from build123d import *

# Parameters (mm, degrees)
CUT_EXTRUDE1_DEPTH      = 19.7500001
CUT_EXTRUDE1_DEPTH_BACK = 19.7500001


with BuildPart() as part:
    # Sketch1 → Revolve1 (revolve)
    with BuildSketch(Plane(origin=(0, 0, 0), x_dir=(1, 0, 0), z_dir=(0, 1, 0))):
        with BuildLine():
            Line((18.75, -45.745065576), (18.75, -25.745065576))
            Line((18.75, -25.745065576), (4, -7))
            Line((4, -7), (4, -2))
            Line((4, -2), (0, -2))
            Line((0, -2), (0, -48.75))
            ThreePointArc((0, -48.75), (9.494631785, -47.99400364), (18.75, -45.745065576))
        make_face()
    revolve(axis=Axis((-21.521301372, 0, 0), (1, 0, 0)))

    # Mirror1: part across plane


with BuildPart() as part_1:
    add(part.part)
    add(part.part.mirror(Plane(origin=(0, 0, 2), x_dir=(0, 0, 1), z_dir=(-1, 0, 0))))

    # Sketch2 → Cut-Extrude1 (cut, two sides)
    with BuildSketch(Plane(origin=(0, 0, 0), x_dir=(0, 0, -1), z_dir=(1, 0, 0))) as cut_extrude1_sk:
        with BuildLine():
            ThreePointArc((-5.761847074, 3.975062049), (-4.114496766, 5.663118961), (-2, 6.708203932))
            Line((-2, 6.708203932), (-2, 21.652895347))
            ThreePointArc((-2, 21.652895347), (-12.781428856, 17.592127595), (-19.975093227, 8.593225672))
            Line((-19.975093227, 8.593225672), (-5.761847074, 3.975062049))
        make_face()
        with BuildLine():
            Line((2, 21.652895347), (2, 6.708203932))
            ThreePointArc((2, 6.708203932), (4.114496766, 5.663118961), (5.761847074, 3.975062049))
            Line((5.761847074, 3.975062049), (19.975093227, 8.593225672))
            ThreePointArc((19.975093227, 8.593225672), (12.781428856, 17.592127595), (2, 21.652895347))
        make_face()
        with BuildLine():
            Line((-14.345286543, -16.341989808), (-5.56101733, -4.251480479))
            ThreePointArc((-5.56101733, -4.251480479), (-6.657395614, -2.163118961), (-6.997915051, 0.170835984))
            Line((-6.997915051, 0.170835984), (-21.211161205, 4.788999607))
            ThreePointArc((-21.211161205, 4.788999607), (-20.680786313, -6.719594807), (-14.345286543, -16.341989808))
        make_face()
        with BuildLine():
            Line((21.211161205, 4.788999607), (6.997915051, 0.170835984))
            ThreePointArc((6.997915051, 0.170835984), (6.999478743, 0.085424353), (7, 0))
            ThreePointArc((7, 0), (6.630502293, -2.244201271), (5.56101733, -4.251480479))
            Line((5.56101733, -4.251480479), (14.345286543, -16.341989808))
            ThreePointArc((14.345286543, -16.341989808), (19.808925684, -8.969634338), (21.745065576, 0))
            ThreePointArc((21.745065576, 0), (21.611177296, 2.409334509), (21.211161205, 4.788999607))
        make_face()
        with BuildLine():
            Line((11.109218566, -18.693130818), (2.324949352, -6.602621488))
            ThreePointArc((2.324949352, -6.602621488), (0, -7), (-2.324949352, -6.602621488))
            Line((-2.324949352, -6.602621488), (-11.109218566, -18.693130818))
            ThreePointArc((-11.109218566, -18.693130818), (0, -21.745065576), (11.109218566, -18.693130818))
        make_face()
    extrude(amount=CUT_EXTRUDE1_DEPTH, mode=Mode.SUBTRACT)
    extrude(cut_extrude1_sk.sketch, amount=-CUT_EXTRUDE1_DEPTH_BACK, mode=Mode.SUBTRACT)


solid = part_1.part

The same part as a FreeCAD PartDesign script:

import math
import FreeCAD as App
import Part
import Sketcher

V = App.Vector
Q = App.Units.Quantity

doc = App.newDocument("Part")
body = doc.addObject("PartDesign::Body", "Body")

# Sketch on XZ plane
sketch1 = body.newObject("Sketcher::SketchObject", "Sketch")
sketch1.AttachmentSupport = (doc.getObject("XZ_Plane"), [""])
sketch1.MapMode = "FlatFace"
sketch1.addGeometry([
    Part.LineSegment(V(18.75, 45.745066, 0), V(18.75, 25.745066, 0)),  # 0
    Part.LineSegment(V(18.75, 25.745066, 0), V(4, 7, 0)),  # 1
    Part.LineSegment(V(4, 7, 0), V(4, 2, 0)),  # 2
    Part.LineSegment(V(4, 2, 0), V(0, 2, 0)),  # 3
    Part.LineSegment(V(0, 2, 0), V(0, 48.75, 0)),  # 4
    Part.ArcOfCircle(Part.Circle(V(0, -11.25, 0), V(0, 0, 1), 60), math.radians(71.790043), math.radians(90)),  # 5
], False)
sketch1.addConstraint([
    Sketcher.Constraint("Coincident", 0, 2, 1, 1),
    Sketcher.Constraint("Coincident", 1, 2, 2, 1),
    Sketcher.Constraint("Coincident", 2, 2, 3, 1),
    Sketcher.Constraint("Coincident", 3, 2, 4, 1),
    Sketcher.Constraint("Coincident", 4, 2, 5, 2),
    Sketcher.Constraint("Coincident", 5, 1, 0, 1),
    Sketcher.Constraint("Vertical", 0),
    Sketcher.Constraint("Vertical", 2),
    Sketcher.Constraint("Horizontal", 3),
    Sketcher.Constraint("Vertical", 4),
    Sketcher.Constraint("PointOnObject", 5, 3, -2),
    Sketcher.Constraint("PointOnObject", 3, 2, -2),
    Sketcher.Constraint("Radius", 5, Q("60 mm")),
    Sketcher.Constraint("DistanceX", 3, 2, 3, 1, Q("4 mm")),
    Sketcher.Constraint("DistanceY", 0, 2, 0, 1, Q("20 mm")),
    Sketcher.Constraint("DistanceY", 2, 2, 2, 1, Q("5 mm")),
    Sketcher.Constraint("DistanceY", -1, 1, 1, 2, Q("7 mm")),
    Sketcher.Constraint("DistanceY", 4, 1, 4, 2, Q("46.75 mm")),
    Sketcher.Constraint("DistanceX", -1, 1, 0, 2, Q("18.75 mm")),
])
revolution = body.newObject("PartDesign::Revolution", "Revolution")
revolution.Profile = sketch1
revolution.ReferenceAxis = (sketch1, ["H_Axis"])
revolution.Angle = 360
body2 = doc.addObject("PartDesign::Body", "Body001")
doc.recompute()

body2.BaseFeature = body
doc.recompute()

mirroring = doc.addObject("Part::Mirroring", "Mirroring")
mirroring.Source = body
mirroring.Base = V(0, 0, 2)
mirroring.Normal = V(-1, 0, 0)
body3 = doc.addObject("PartDesign::Body", "Body002")
body3.BaseFeature = mirroring
boolean = body2.newObject("PartDesign::Boolean", "Boolean")
boolean.Type = "Fuse"
boolean.addObjects([body3])
doc.recompute()

# Sketch on YZ plane
sketch2 = body2.newObject("Sketcher::SketchObject", "Sketch001")
sketch2.AttachmentSupport = (doc.getObject("YZ_Plane001"), [""])
sketch2.MapMode = "FlatFace"
sketch2.addGeometry([
    Part.ArcOfCircle(Part.Circle(V(0, 0, 0), V(0, 0, 1), 7), math.radians(16.60155), math.radians(55.39845)),  # 0
    Part.LineSegment(V(6.708204, 2, 0), V(21.652895, 2, 0)),  # 1
    Part.ArcOfCircle(Part.Circle(V(0, 0, 0), V(0, 0, 1), 21.745066), math.radians(5.277231), math.radians(66.722769)),  # 2
    Part.LineSegment(V(8.593226, 19.975093, 0), V(3.975062, 5.761847, 0)),  # 3
    Part.LineSegment(V(21.652895, -2, 0), V(6.708204, -2, 0)),  # 4
    Part.ArcOfCircle(Part.Circle(V(0, 0, 0), V(0, 0, 1), 7), math.radians(-55.39845), math.radians(-16.60155)),  # 5
    Part.LineSegment(V(3.975062, -5.761847, 0), V(8.593226, -19.975093, 0)),  # 6
    Part.ArcOfCircle(Part.Circle(V(0, 0, 0), V(0, 0, 1), 21.745066), math.radians(-66.722769), math.radians(-5.277231)),  # 7
    Part.LineSegment(V(-16.34199, 14.345287, 0), V(-4.25148, 5.561017, 0)),  # 8
    Part.ArcOfCircle(Part.Circle(V(0, 0, 0), V(0, 0, 1), 7), math.radians(88.60155), math.radians(127.39845)),  # 9
    Part.LineSegment(V(0.170836, 6.997915, 0), V(4.789, 21.211161, 0)),  # 10
    Part.ArcOfCircle(Part.Circle(V(0, 0, 0), V(0, 0, 1), 21.745066), math.radians(77.277231), math.radians(138.722769)),  # 11
    Part.LineSegment(V(4.789, -21.211161, 0), V(0.170836, -6.997915, 0)),  # 12
    Part.ArcOfCircle(Part.Circle(V(0, 0.000003, 0), V(0, 0, 1), 7.000003), math.radians(-90), math.radians(-88.60155)),  # 13
    Part.ArcOfCircle(Part.Circle(V(0, 0, 0), V(0, 0, 1), 7), math.radians(-127.39845), math.radians(-90)),  # 14
    Part.LineSegment(V(-4.25148, -5.561017, 0), V(-16.34199, -14.345287, 0)),  # 15
    Part.ArcOfCircle(Part.Circle(V(0, 0, 0), V(0, 0, 1), 21.745066), math.radians(-138.722769), math.radians(-90)),  # 16
    Part.ArcOfCircle(Part.Circle(V(0, 0, 0), V(0, 0, 1), 21.745066), math.radians(-90), math.radians(-77.277231)),  # 17
    Part.LineSegment(V(-18.693131, -11.109219, 0), V(-6.602621, -2.324949, 0)),  # 18
    Part.ArcOfCircle(Part.Circle(V(0, 0, 0), V(0, 0, 1), 7), math.radians(160.60155), math.radians(199.39845)),  # 19
    Part.LineSegment(V(-6.602621, 2.324949, 0), V(-18.693131, 11.109219, 0)),  # 20
    Part.ArcOfCircle(Part.Circle(V(0, 0, 0), V(0, 0, 1), 21.745066), math.radians(149.277231), math.radians(210.722769)),  # 21
], False)
sketch2.addConstraint([
    Sketcher.Constraint("Coincident", 0, 1, 1, 1),
    Sketcher.Constraint("Coincident", 1, 2, 2, 1),
    Sketcher.Constraint("Coincident", 2, 2, 3, 1),
    Sketcher.Constraint("Coincident", 3, 2, 0, 2),
    Sketcher.Constraint("Coincident", 4, 2, 5, 2),
    Sketcher.Constraint("Coincident", 5, 1, 6, 1),
    Sketcher.Constraint("Coincident", 6, 2, 7, 1),
    Sketcher.Constraint("Coincident", 7, 2, 4, 1),
    Sketcher.Constraint("Coincident", 8, 2, 9, 2),
    Sketcher.Constraint("Coincident", 9, 1, 10, 1),
    Sketcher.Constraint("Coincident", 10, 2, 11, 1),
    Sketcher.Constraint("Coincident", 11, 2, 8, 1),
    Sketcher.Constraint("Coincident", 12, 2, 13, 2),
    Sketcher.Constraint("Tangent", 13, 1, 14, 2),
    Sketcher.Constraint("Coincident", 14, 1, 15, 1),
    Sketcher.Constraint("Coincident", 15, 2, 16, 1),
    Sketcher.Constraint("Tangent", 16, 2, 17, 1),
    Sketcher.Constraint("Coincident", 17, 2, 12, 1),
    Sketcher.Constraint("Coincident", 18, 2, 19, 2),
    Sketcher.Constraint("Coincident", 19, 1, 20, 1),
    Sketcher.Constraint("Coincident", 20, 2, 21, 1),
    Sketcher.Constraint("Coincident", 21, 2, 18, 1),
    Sketcher.Constraint("Horizontal", 1),
    Sketcher.Constraint("Horizontal", 4),
    Sketcher.Constraint("Coincident", 0, 3, -1, 1),
    Sketcher.Constraint("Coincident", 2, 3, -1, 1),
    Sketcher.Constraint("Coincident", 5, 3, -1, 1),
    Sketcher.Constraint("Coincident", 7, 3, -1, 1),
    Sketcher.Constraint("Coincident", 9, 3, -1, 1),
    Sketcher.Constraint("Coincident", 11, 3, -1, 1),
    Sketcher.Constraint("Coincident", 13, 3, -1, 1),
    Sketcher.Constraint("Coincident", 16, 3, -1, 1),
    Sketcher.Constraint("Coincident", 19, 3, -1, 1),
    Sketcher.Constraint("Coincident", 21, 3, -1, 1),
    Sketcher.Constraint("Equal", 0, 5),
    Sketcher.Constraint("Equal", 2, 7),
    Sketcher.Constraint("Equal", 5, 9),
    Sketcher.Constraint("Equal", 7, 11),
    Sketcher.Constraint("Equal", 9, 14),
    Sketcher.Constraint("Equal", 11, 16),
    Sketcher.Constraint("Equal", 16, 17),
    Sketcher.Constraint("Equal", 14, 19),
    Sketcher.Constraint("Equal", 17, 21),
    Sketcher.Constraint("Symmetric", 9, 1, 12, 2, -1),
    Sketcher.Constraint("PointOnObject", 13, 1, -2),
    Sketcher.Constraint("PointOnObject", 16, 2, -2),
    Sketcher.Constraint("Parallel", 3, 10),
    Sketcher.Constraint("Parallel", 6, 12),
    Sketcher.Constraint("Parallel", 15, 18),
    Sketcher.Constraint("Parallel", 8, 20),
    Sketcher.Constraint("Vertical", 0, 1, 4, 2),
    Sketcher.Constraint("Vertical", 3, 2, 5, 1),
    Sketcher.Constraint("Vertical", 2, 2, 6, 2),
    Sketcher.Constraint("Vertical", 8, 2, 14, 1),
    Sketcher.Constraint("Vertical", 11, 2, 15, 2),
    Sketcher.Constraint("Vertical", 18, 2, 19, 1),
    Sketcher.Constraint("Equal", 6, 8),
    Sketcher.Constraint("Equal", 8, 10),
    Sketcher.Constraint("Equal", 15, 18),
    Sketcher.Constraint("Radius", 0, Q("7 mm")),
    Sketcher.Constraint("Angle", 3, Q("-108 deg")),
    Sketcher.Constraint("Angle", 8, Q("-36 deg")),
    Sketcher.Constraint("DistanceY", -1, 1, 0, 1, Q("2 mm")),
    Sketcher.Constraint("DistanceX", -1, 1, 10, 2, Q("4.789 mm")),
    Sketcher.Constraint("Radius", 2, Q("21.745066 mm")),
])
pocket1 = body2.newObject("PartDesign::Pocket", "Pocket")
pocket1.Profile = sketch2
pocket1.Type = "ThroughAll"
pocket1.Midplane = True
mirroring.Visibility = False

doc.recompute()
